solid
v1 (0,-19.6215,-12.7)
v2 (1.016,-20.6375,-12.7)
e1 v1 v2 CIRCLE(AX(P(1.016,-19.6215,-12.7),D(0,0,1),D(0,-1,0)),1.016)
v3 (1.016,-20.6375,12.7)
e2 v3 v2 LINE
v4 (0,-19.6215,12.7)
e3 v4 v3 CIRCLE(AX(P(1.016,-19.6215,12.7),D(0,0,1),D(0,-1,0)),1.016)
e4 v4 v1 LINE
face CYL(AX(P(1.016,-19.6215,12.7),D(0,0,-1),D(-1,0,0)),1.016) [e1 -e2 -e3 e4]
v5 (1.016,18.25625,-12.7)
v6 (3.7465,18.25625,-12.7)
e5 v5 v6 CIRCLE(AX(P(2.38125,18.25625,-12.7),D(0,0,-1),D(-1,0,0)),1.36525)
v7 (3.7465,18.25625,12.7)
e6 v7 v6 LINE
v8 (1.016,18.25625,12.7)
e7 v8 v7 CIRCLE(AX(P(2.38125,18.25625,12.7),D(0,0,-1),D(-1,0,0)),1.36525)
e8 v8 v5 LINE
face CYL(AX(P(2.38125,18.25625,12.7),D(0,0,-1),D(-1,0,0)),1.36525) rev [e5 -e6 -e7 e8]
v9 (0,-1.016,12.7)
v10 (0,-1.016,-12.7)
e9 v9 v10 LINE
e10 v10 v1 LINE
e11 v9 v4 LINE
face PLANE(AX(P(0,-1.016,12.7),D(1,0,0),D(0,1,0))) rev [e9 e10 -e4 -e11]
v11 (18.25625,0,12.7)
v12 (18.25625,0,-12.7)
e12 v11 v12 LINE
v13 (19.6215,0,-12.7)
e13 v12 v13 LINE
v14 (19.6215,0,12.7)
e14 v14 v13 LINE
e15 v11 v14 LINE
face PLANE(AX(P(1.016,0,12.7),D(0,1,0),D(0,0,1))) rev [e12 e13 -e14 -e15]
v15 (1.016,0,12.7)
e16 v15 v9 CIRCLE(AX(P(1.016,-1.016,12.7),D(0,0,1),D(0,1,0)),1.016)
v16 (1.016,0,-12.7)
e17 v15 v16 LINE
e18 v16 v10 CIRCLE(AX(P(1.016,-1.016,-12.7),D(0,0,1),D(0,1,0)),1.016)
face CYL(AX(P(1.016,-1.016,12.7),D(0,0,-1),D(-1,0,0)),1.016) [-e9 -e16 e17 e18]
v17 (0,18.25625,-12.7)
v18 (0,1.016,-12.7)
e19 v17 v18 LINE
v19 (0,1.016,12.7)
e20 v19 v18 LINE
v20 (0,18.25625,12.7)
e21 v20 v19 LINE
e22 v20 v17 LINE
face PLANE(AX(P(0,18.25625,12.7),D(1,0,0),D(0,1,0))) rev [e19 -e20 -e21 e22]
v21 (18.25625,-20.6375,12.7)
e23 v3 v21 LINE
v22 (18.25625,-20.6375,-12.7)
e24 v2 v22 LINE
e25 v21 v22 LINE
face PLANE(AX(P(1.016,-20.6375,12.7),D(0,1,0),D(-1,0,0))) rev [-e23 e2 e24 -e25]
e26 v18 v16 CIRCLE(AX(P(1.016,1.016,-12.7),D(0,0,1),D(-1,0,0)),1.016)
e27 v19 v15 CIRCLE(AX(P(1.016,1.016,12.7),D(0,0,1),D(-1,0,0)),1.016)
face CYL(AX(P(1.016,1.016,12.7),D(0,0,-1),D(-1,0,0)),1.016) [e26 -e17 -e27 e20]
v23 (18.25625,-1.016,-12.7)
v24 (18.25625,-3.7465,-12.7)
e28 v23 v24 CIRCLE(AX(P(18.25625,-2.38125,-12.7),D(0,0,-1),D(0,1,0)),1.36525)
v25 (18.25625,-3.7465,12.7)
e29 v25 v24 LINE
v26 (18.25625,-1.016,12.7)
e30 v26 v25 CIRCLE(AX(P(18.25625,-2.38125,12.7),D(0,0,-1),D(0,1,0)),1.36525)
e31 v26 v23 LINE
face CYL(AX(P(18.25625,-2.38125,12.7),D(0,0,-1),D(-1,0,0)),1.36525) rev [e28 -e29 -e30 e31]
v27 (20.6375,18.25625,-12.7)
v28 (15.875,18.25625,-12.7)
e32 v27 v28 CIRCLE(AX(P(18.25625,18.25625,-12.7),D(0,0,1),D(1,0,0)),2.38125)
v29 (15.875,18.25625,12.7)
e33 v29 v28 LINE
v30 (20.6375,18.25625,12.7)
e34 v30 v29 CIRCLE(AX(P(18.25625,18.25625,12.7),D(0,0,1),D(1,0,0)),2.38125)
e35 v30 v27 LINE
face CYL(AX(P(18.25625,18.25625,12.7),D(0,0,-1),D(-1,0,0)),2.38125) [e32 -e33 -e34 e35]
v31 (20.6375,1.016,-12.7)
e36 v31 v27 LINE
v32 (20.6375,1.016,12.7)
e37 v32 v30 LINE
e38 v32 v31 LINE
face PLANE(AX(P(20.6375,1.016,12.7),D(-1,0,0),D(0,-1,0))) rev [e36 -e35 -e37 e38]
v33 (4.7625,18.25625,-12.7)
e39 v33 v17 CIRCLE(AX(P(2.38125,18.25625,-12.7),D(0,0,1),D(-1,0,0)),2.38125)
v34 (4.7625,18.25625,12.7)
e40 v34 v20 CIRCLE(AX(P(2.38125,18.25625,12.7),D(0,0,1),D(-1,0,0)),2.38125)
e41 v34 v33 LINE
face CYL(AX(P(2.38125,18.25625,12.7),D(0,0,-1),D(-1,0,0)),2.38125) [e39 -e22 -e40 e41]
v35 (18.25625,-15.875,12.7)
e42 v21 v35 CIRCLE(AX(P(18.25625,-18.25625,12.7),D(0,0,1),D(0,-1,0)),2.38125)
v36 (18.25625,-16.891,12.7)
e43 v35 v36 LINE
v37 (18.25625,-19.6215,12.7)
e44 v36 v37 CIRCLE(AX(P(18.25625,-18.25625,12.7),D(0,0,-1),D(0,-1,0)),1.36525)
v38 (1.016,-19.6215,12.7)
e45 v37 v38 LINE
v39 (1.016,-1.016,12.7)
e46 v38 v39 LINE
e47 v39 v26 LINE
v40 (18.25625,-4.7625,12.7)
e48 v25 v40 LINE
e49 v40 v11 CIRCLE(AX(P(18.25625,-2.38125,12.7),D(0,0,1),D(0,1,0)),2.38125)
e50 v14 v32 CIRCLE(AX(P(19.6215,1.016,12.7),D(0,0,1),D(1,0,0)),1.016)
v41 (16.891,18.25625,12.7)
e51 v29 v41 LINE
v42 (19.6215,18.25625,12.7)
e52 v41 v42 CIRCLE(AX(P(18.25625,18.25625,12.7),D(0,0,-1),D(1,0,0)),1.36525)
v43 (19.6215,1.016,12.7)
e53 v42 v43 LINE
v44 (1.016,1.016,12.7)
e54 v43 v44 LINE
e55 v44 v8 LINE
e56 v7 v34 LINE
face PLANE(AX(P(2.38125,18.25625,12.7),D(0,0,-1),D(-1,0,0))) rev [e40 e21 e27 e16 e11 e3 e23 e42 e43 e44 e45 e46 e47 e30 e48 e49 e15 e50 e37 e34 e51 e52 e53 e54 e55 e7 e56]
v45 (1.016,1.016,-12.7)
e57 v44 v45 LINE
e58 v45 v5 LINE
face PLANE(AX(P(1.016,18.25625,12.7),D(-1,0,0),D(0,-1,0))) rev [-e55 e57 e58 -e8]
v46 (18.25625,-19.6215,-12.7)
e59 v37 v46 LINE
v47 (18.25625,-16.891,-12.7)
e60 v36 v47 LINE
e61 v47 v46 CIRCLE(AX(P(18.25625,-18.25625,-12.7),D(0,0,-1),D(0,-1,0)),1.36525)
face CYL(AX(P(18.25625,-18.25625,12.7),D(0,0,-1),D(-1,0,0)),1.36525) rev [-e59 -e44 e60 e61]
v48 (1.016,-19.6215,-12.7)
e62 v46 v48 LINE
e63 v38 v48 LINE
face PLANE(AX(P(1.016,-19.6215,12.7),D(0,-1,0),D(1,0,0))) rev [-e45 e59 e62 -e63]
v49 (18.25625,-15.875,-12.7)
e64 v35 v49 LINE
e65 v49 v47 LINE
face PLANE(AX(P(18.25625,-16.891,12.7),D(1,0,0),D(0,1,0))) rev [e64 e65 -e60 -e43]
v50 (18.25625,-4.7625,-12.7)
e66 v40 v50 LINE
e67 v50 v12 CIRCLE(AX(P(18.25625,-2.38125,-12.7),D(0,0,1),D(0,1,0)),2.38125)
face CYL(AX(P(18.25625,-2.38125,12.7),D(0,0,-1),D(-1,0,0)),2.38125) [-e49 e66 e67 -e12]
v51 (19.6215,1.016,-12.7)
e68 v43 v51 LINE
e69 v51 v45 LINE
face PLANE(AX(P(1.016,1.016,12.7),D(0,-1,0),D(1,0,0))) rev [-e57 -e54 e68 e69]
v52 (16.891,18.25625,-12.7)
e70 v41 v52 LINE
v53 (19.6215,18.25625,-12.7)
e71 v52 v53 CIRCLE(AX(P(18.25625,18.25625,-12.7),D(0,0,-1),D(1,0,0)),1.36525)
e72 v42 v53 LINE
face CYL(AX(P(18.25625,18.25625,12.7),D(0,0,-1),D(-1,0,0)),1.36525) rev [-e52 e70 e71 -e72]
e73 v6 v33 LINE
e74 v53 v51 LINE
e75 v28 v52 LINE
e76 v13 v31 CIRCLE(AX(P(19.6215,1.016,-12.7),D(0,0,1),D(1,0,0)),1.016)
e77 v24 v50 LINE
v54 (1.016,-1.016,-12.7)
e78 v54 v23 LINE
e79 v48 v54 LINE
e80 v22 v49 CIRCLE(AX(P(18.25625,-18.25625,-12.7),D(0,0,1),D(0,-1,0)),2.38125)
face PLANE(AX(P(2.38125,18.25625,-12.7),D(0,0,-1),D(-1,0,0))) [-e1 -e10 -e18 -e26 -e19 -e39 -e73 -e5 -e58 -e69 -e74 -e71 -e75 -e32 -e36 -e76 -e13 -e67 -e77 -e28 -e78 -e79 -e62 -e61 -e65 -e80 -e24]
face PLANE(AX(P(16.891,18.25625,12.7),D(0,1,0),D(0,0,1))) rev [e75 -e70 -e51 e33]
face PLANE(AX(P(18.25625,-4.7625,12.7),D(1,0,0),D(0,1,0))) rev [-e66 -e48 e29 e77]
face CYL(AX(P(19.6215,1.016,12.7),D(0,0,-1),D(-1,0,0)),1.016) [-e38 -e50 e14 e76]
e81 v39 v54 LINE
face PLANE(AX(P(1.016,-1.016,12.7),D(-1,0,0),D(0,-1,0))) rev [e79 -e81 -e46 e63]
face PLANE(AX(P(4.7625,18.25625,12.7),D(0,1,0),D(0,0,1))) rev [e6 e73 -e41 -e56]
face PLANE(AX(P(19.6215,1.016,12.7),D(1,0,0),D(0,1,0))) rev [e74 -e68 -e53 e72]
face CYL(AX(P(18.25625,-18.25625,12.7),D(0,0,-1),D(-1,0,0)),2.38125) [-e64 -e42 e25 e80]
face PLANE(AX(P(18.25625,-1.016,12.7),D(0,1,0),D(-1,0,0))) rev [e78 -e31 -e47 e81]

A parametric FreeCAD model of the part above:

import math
import FreeCAD as App
import Part
import Sketcher
from FreeCAD import Vector
Q = App.Units.Quantity

doc = App.newDocument("Part")
body = doc.addObject("PartDesign::Body", "Body")

sketch1 = body.newObject("Sketcher::SketchObject", "Sketch")
sketch1.AttachmentSupport = (doc.getObject("XY_Plane"), [""])
sketch1.MapMode = "FlatFace"
sketch1.addGeometry(Part.LineSegment(Vector(0, 18.3, 0), Vector(0, 1, 0)), False)
sketch1.addGeometry(Part.ArcOfCircle(Part.Circle(Vector(1, 1, 0), Vector(0, 0, 1), 1), math.radians(180), math.radians(270)), False)
sketch1.addGeometry(Part.LineSegment(Vector(1, 0, 0), Vector(19.6, 0, 0)), False)
sketch1.addGeometry(Part.ArcOfCircle(Part.Circle(Vector(19.6, 1, 0), Vector(0, 0, 1), 1), math.radians(-90), math.radians(0)), False)
sketch1.addGeometry(Part.LineSegment(Vector(20.6, 1, 0), Vector(20.6, 18.3, 0)), False)
sketch1.addGeometry(Part.ArcOfCircle(Part.Circle(Vector(18.3, 18.3, 0), Vector(0, 0, 1), 2.4), math.radians(0), math.radians(180)), False)
sketch1.addGeometry(Part.LineSegment(Vector(15.9, 18.3, 0), Vector(16.9, 18.3, 0)), False)
sketch1.addGeometry(Part.ArcOfCircle(Part.Circle(Vector(18.3, 18.3, 0), Vector(0, 0, 1), 1.4), math.radians(0), math.radians(180)), False)
sketch1.addGeometry(Part.LineSegment(Vector(19.6, 18.3, 0), Vector(19.6, 1, 0)), False)
sketch1.addGeometry(Part.LineSegment(Vector(19.6, 1, 0), Vector(1, 1, 0)), False)
sketch1.addGeometry(Part.LineSegment(Vector(1, 1, 0), Vector(1, 18.3, 0)), False)
sketch1.addGeometry(Part.ArcOfCircle(Part.Circle(Vector(2.4, 18.3, 0), Vector(0, 0, 1), 1.4), math.radians(0), math.radians(180)), False)
sketch1.addGeometry(Part.LineSegment(Vector(3.7, 18.3, 0), Vector(4.8, 18.3, 0)), False)
sketch1.addGeometry(Part.ArcOfCircle(Part.Circle(Vector(2.4, 18.3, 0), Vector(0, 0, 1), 2.4), math.radians(0), math.radians(180)), False)
sketch1.addConstraint(Sketcher.Constraint("Tangent", 0, 2, 1, 1))
sketch1.addConstraint(Sketcher.Constraint("Tangent", 1, 2, 2, 1))
sketch1.addConstraint(Sketcher.Constraint("Tangent", 2, 2, 3, 1))
sketch1.addConstraint(Sketcher.Constraint("Tangent", 3, 2, 4, 1))
sketch1.addConstraint(Sketcher.Constraint("Tangent", 4, 2, 5, 1))
sketch1.addConstraint(Sketcher.Constraint("Coincident", 5, 2, 6, 1))
sketch1.addConstraint(Sketcher.Constraint("Coincident", 6, 2, 7, 2))
sketch1.addConstraint(Sketcher.Constraint("Tangent", 7, 1, 8, 1))
sketch1.addConstraint(Sketcher.Constraint("Coincident", 8, 2, 9, 1))
sketch1.addConstraint(Sketcher.Constraint("Coincident", 9, 2, 10, 1))
sketch1.addConstraint(Sketcher.Constraint("Tangent", 10, 2, 11, 2))
sketch1.addConstraint(Sketcher.Constraint("Coincident", 11, 1, 12, 1))
sketch1.addConstraint(Sketcher.Constraint("Coincident", 12, 2, 13, 1))
sketch1.addConstraint(Sketcher.Constraint("Tangent", 13, 2, 0, 1))
sketch1.addConstraint(Sketcher.Constraint("Vertical", 0))
sketch1.addConstraint(Sketcher.Constraint("Horizontal", 2))
sketch1.addConstraint(Sketcher.Constraint("Vertical", 4))
sketch1.addConstraint(Sketcher.Constraint("Horizontal", 6))
sketch1.addConstraint(Sketcher.Constraint("Vertical", 8))
sketch1.addConstraint(Sketcher.Constraint("Horizontal", 9))
sketch1.addConstraint(Sketcher.Constraint("Vertical", 10))
sketch1.addConstraint(Sketcher.Constraint("Horizontal", 12))
sketch1.addConstraint(Sketcher.Constraint("Coincident", 7, 3, 5, 3))
sketch1.addConstraint(Sketcher.Constraint("Coincident", 13, 3, 11, 3))
sketch1.addConstraint(Sketcher.Constraint("Coincident", 8, 2, 3, 3))
sketch1.addConstraint(Sketcher.Constraint("Coincident", 9, 2, 1, 3))
sketch1.addConstraint(Sketcher.Constraint("Equal", 7, 11))
sketch1.addConstraint(Sketcher.Constraint("PointOnObject", 0, 2, -2))
sketch1.addConstraint(Sketcher.Constraint("PointOnObject", 1, 2, -1))
sketch1.addConstraint(Sketcher.Constraint("Horizontal", 7, 3, 11, 3))
sketch1.addConstraint(Sketcher.Constraint("Horizontal", 4, 2, 5, 2))
sketch1.addConstraint(Sketcher.Constraint("Horizontal", 10, 2, 11, 1))
sketch1.addConstraint(Sketcher.Constraint("Radius", 1, Q("0.04 in")))
sketch1.addConstraint(Sketcher.Constraint("Radius", 5, Q("0.09375 in")))
sketch1.addConstraint(Sketcher.Constraint("DistanceX", 2, 1, 2, 2, Q("0.7325 in")))
sketch1.addConstraint(Sketcher.Constraint("DistanceY", -1, 1, 5, 3, Q("0.71875 in")))
pad1 = body.newObject("PartDesign::Pad", "Pad")
pad1.Profile = sketch1
pad1.Length = Q("1 in")
pad1.Midplane = True
doc.recompute()

polarpattern = body.newObject("PartDesign::PolarPattern", "PolarPattern")
polarpattern.Originals = [pad1]
polarpattern.Axis = (doc.getObject("Z_Axis"), [""])
polarpattern.Angle = 270
polarpattern.Occurrences = 2
body.Tip = polarpattern

doc.recompute()
